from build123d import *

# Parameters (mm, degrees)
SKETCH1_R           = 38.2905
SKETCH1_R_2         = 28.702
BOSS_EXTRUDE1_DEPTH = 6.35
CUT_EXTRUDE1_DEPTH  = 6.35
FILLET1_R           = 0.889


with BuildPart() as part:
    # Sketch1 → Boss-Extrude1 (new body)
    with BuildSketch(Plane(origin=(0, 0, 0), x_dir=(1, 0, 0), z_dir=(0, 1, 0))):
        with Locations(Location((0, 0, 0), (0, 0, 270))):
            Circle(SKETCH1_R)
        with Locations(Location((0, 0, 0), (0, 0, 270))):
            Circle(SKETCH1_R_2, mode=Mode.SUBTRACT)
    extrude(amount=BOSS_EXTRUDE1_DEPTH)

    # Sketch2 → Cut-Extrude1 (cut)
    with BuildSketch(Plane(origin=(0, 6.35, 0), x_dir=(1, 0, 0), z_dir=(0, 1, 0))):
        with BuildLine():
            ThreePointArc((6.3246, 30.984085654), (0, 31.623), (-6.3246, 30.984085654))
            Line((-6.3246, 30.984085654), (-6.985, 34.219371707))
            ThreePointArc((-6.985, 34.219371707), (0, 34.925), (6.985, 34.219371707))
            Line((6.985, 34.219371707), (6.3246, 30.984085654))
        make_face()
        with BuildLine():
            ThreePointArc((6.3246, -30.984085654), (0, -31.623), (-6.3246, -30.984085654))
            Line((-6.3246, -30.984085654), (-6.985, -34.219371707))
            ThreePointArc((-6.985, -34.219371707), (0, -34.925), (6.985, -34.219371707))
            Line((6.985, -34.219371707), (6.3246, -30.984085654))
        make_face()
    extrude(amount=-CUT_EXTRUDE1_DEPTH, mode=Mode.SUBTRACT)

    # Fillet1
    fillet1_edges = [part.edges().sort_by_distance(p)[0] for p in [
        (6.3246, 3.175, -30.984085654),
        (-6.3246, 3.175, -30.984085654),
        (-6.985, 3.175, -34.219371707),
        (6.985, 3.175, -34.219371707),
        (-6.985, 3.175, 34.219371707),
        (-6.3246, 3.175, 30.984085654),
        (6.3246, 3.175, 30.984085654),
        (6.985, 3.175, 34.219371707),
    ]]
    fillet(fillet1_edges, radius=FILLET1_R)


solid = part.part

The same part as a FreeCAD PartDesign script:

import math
import FreeCAD as App
import Part
import Sketcher
Q = App.Units.Quantity


def edges_at(feature, points):
    """Names of the edges that pass closest to the given points."""
    edges = feature.Shape.Edges
    near = lambda p: min(range(len(edges)), key=lambda i: edges[i].distToShape(Part.Vertex(*p))[0])
    return sorted({f"Edge{near(p) + 1}" for p in points})

doc = App.newDocument("Part")
body = doc.addObject("PartDesign::Body", "Body")

sketch1 = body.newObject("Sketcher::SketchObject", "Sketch")
sketch1.AttachmentSupport = (doc.getObject("XZ_Plane"), [""])
sketch1.MapMode = "FlatFace"
sketch1.addGeometry(Part.Circle(App.Vector(0, 0, 0), App.Vector(0, 0, 1), 38), False)
sketch1.addGeometry(Part.Circle(App.Vector(0, 0, 0), App.Vector(0, 0, 1), 29), False)
sketch1.addConstraint(Sketcher.Constraint("Coincident", 0, 3, -1, 1))
sketch1.addConstraint(Sketcher.Constraint("Coincident", 1, 3, -1, 1))
sketch1.addConstraint(Sketcher.Constraint("Diameter", 1, Q("2.26 in")))
sketch1.addConstraint(Sketcher.Constraint("Diameter", 0, Q("3.015 in")))
pad1 = body.newObject("PartDesign::Pad", "Pad")
pad1.Profile = sketch1
pad1.Length = Q("0.25 in")
pad1.Reversed = True

sketch2 = body.newObject("Sketcher::SketchObject", "Sketch001")
sketch2.AttachmentSupport = (doc.getObject("XZ_Plane"), [""])
sketch2.MapMode = "FlatFace"
sketch2.AttachmentOffset = App.Placement(App.Vector(0, 0, -0.25 * 25.4), App.Rotation())
sketch2.addGeometry(Part.ArcOfCircle(Part.Circle(App.Vector(0, 0, 0), App.Vector(0, 0, 1), 31.6), math.radians(-102), math.radians(-78)), False)
sketch2.addGeometry(Part.LineSegment(App.Vector(6.3, -31, 0), App.Vector(7, -34.2, 0)), False)
sketch2.addGeometry(Part.ArcOfCircle(Part.Circle(App.Vector(0, 0, 0), App.Vector(0, 0, 1), 34.9), math.radians(-102), math.radians(-78)), False)
sketch2.addGeometry(Part.LineSegment(App.Vector(-7, -34.2, 0), App.Vector(-6.3, -31, 0)), False)
sketch2.addGeometry(Part.ArcOfCircle(Part.Circle(App.Vector(0, 0, 0), App.Vector(0, 0, 1), 31.6), math.radians(78), math.radians(102)), False)
sketch2.addGeometry(Part.LineSegment(App.Vector(-6.3, 31, 0), App.Vector(-7, 34.2, 0)), False)
sketch2.addGeometry(Part.ArcOfCircle(Part.Circle(App.Vector(0, 0, 0), App.Vector(0, 0, 1), 34.9), math.radians(78), math.radians(102)), False)
sketch2.addGeometry(Part.LineSegment(App.Vector(7, 34.2, 0), App.Vector(6.3, 31, 0)), False)
sketch2.addConstraint(Sketcher.Constraint("Coincident", 0, 2, 1, 1))
sketch2.addConstraint(Sketcher.Constraint("Coincident", 1, 2, 2, 2))
sketch2.addConstraint(Sketcher.Constraint("Coincident", 2, 1, 3, 1))
sketch2.addConstraint(Sketcher.Constraint("Coincident", 3, 2, 0, 1))
sketch2.addConstraint(Sketcher.Constraint("Coincident", 4, 2, 5, 1))
sketch2.addConstraint(Sketcher.Constraint("Coincident", 5, 2, 6, 2))
sketch2.addConstraint(Sketcher.Constraint("Coincident", 6, 1, 7, 1))
sketch2.addConstraint(Sketcher.Constraint("Coincident", 7, 2, 4, 1))
sketch2.addConstraint(Sketcher.Constraint("Coincident", 0, 3, -1, 1))
sketch2.addConstraint(Sketcher.Constraint("Coincident", 2, 3, -1, 1))
sketch2.addConstraint(Sketcher.Constraint("Coincident", 4, 3, -1, 1))
sketch2.addConstraint(Sketcher.Constraint("Coincident", 6, 3, -1, 1))
sketch2.addConstraint(Sketcher.Constraint("Equal", 0, 4))
sketch2.addConstraint(Sketcher.Constraint("Equal", 2, 6))
sketch2.addConstraint(Sketcher.Constraint("Parallel", 1, 5))
sketch2.addConstraint(Sketcher.Constraint("Parallel", 3, 7))
sketch2.addConstraint(Sketcher.Constraint("Horizontal", 1, 2, 2, 1))
sketch2.addConstraint(Sketcher.Constraint("Horizontal", 0, 2, 3, 2))
sketch2.addConstraint(Sketcher.Constraint("Horizontal", 5, 2, 6, 1))
sketch2.addConstraint(Sketcher.Constraint("Vertical", 3, 2, 4, 2))
sketch2.addConstraint(Sketcher.Constraint("Radius", 0, Q("1.245 in")))
sketch2.addConstraint(Sketcher.Constraint("Radius", 2, Q("1.375 in")))
sketch2.addConstraint(Sketcher.Constraint("DistanceX", 2, 1, 1, 2, Q("0.55 in")))
sketch2.addConstraint(Sketcher.Constraint("DistanceX", -1, 1, 0, 2, Q("0.249 in")))
pocket1 = body.newObject("PartDesign::Pocket", "Pocket")
pocket1.Profile = sketch2
pocket1.Length = Q("0.25 in")
pocket1.Reversed = True
doc.recompute()

fillet = body.newObject("PartDesign::Fillet", "Fillet")
fillet.Base = (pocket1, edges_at(pocket1, [
    (6.325, 3.175, -30.984),
    (-6.325, 3.175, -30.984),
    (-6.985, 3.175, -34.219),
    (6.985, 3.175, -34.219),
    (-6.985, 3.175, 34.219),
    (-6.325, 3.175, 30.984),
    (6.325, 3.175, 30.984),
    (6.985, 3.175, 34.219),
]))
fillet.Radius = Q("0.035 in")

doc.recompute()
